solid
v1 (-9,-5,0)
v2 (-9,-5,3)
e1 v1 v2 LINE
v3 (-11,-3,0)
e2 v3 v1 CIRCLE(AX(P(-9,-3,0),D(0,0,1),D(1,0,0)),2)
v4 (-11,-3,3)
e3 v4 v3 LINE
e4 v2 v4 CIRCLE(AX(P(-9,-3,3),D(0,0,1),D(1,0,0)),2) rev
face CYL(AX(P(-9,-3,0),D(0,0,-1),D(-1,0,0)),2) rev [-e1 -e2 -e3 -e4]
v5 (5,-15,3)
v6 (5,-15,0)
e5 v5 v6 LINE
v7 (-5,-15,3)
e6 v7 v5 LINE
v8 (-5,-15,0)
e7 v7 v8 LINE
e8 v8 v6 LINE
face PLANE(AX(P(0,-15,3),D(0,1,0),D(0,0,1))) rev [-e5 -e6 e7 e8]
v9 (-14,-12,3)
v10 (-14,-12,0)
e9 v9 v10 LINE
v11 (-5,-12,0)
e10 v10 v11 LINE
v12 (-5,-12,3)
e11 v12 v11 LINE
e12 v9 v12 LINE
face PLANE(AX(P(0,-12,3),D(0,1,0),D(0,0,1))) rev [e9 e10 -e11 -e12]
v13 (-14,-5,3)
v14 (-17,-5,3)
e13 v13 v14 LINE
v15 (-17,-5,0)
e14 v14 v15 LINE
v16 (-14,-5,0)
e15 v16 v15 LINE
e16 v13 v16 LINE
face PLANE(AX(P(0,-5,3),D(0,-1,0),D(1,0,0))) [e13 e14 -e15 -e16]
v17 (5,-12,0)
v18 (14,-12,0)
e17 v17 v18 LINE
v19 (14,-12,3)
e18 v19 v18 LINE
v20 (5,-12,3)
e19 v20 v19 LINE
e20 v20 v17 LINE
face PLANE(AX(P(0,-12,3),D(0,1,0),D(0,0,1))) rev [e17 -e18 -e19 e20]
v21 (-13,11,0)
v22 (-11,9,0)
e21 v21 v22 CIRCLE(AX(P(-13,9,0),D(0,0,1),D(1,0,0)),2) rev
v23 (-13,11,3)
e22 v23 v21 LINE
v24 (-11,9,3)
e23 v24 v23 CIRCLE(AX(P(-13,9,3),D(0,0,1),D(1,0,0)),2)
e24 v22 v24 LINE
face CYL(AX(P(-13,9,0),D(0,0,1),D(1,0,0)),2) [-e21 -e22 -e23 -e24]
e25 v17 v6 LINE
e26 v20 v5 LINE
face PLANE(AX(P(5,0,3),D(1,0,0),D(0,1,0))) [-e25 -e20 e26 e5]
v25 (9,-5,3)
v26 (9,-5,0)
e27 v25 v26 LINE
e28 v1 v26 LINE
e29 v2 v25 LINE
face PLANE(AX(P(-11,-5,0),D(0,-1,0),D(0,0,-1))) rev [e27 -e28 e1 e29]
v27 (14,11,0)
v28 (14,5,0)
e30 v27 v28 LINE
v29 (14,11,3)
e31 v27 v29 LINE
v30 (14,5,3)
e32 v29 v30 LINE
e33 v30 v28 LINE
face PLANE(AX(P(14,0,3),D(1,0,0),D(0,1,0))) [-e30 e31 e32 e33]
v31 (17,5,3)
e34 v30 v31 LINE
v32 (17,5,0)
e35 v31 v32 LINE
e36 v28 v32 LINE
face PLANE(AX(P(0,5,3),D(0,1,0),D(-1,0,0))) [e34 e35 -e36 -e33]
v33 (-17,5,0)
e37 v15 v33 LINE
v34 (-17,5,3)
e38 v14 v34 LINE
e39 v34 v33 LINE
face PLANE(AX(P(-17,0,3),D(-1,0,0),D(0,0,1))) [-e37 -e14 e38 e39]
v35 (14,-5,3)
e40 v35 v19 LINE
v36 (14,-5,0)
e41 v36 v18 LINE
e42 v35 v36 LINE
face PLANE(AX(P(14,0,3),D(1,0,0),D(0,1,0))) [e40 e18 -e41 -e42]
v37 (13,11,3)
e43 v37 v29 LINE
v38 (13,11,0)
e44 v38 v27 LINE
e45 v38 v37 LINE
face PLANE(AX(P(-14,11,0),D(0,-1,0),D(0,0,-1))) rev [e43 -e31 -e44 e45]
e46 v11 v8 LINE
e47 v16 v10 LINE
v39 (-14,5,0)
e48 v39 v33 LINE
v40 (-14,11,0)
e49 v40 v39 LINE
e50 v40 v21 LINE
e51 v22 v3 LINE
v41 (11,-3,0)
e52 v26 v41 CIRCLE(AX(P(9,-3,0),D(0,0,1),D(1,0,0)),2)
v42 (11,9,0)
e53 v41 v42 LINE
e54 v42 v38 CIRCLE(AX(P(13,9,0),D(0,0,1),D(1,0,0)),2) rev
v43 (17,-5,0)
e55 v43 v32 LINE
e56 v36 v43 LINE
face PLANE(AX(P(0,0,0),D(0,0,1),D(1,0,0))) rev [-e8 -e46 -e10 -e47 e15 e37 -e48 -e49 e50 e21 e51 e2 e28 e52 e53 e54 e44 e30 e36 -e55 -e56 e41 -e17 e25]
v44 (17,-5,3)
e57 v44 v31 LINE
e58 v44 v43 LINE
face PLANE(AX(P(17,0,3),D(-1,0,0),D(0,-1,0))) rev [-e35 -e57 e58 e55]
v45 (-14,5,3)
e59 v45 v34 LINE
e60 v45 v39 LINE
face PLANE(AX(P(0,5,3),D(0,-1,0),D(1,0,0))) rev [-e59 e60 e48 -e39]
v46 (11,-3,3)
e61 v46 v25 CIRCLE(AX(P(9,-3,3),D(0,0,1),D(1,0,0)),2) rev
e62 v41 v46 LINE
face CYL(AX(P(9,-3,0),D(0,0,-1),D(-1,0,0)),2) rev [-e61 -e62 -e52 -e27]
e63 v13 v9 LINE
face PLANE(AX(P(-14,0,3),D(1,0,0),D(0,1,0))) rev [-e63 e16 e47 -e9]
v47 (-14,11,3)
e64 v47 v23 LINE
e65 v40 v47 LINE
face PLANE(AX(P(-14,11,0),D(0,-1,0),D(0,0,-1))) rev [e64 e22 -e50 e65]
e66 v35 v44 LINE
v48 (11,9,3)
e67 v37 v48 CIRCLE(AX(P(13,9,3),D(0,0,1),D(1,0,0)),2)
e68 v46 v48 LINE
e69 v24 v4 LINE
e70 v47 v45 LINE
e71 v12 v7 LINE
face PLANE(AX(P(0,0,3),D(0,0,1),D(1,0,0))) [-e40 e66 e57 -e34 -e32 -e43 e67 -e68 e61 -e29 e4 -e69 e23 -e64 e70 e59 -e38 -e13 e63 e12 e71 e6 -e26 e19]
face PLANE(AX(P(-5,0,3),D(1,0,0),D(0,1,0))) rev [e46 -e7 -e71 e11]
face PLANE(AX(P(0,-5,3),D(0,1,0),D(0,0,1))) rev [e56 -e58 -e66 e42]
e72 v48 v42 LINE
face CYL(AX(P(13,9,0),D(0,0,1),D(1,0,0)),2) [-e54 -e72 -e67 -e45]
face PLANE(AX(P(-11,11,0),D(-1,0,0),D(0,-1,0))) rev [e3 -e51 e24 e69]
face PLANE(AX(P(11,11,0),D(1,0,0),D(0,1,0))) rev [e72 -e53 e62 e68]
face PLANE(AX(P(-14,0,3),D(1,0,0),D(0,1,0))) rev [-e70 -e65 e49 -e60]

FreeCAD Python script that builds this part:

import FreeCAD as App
import Part
import Sketcher
from FreeCAD import Vector


def edges_at(feature, points):
    """Names of the edges that pass closest to the given points."""
    edges = feature.Shape.Edges
    near = lambda p: min(range(len(edges)), key=lambda i: edges[i].distToShape(Part.Vertex(*p))[0])
    return sorted({f"Edge{near(p) + 1}" for p in points})


def add_polygon(sketch, points):
    """Adds a closed chain of lines whose ends are joined by coincident constraints."""
    first, n = sketch.GeometryCount, len(points)
    for a, b in zip(points, points[1:] + points[:1]):
        sketch.addGeometry(Part.LineSegment(App.Vector(*a, 0), App.Vector(*b, 0)), False)
    for i in range(n):
        sketch.addConstraint(Sketcher.Constraint("Coincident", first + i, 2, first + (i + 1) % n, 1))

doc = App.newDocument("Part")
body = doc.addObject("PartDesign::Body", "Body")

# Sketch on XY plane
sketch1 = doc.addObject("Sketcher::SketchObject", "Sketch")
body.addObject(sketch1)
sketch1.AttachmentSupport = (doc.XY_Plane, [""])
sketch1.MapMode = "FlatFace"
add_polygon(sketch1, [(-14, -5), (-14, -12), (-5, -12), (-5, -15), (5, -15), (5, -12), (14, -12), (14, -5), (17, -5), (17, 5), (14, 5), (14, 12), (-14, 12), (-14, 5), (-17, 5), (-17, -5)])  # lines 0-15
sketch1.addConstraint([
    Sketcher.Constraint("Vertical", 0),
    Sketcher.Constraint("Horizontal", 1),
    Sketcher.Constraint("Vertical", 2),
    Sketcher.Constraint("Horizontal", 3),
    Sketcher.Constraint("Vertical", 4),
    Sketcher.Constraint("Horizontal", 5),
    Sketcher.Constraint("Vertical", 6),
    Sketcher.Constraint("Horizontal", 7),
    Sketcher.Constraint("Vertical", 8),
    Sketcher.Constraint("Horizontal", 9),
    Sketcher.Constraint("Vertical", 10),
    Sketcher.Constraint("Horizontal", 11),
    Sketcher.Constraint("Vertical", 12),
    Sketcher.Constraint("Horizontal", 13),
    Sketcher.Constraint("Vertical", 14),
    Sketcher.Constraint("Horizontal", 15),
    Sketcher.Constraint("Symmetric", 0, 2, 10, 2, -1, 1),
    Sketcher.Constraint("Symmetric", 5, 2, 11, 2, -1, 1),
    Sketcher.Constraint("Symmetric", 7, 2, 13, 2, -1, 1),
    Sketcher.Constraint("Symmetric", 9, 2, 12, 2, -2),
    Sketcher.Constraint("Horizontal", 7, 2, 14, 2),
    Sketcher.Constraint("Equal", 1, 5),
    Sketcher.Constraint("Equal", 15, 2),
    Sketcher.Constraint("Equal", 3, 8),
    Sketcher.Constraint("DistanceX", 1, 1, 1, 2, 9.0),
    Sketcher.Constraint("DistanceX", 3, 1, 3, 2, 10.0),
    Sketcher.Constraint("DistanceX", 7, 1, 7, 2, 3.0),
    Sketcher.Constraint("DistanceY", 0, 2, 0, 1, 7.0),
])
pad1 = doc.addObject("PartDesign::Pad", "Pad")
body.addObject(pad1)
pad1.Profile = sketch1
pad1.Length = 3

# Sketch on XY plane
sketch2 = doc.addObject("Sketcher::SketchObject", "Sketch001")
body.addObject(sketch2)
sketch2.AttachmentSupport = (doc.XY_Plane, [""])
sketch2.MapMode = "FlatFace"
sketch2.AttachmentOffset = App.Placement(Vector(0, 0, 3), App.Rotation())
add_polygon(sketch2, [(-14, 12), (-14, 11), (14, 11), (14, 12)])  # lines 0-3
sketch2.addConstraint([
    Sketcher.Constraint("Vertical", 0),
    Sketcher.Constraint("Horizontal", 1),
    Sketcher.Constraint("Vertical", 2),
    Sketcher.Constraint("Horizontal", 3),
    Sketcher.Constraint("DistanceX", 1, 1, 1, 2, 28.0),
    Sketcher.Constraint("DistanceY", 0, 2, 0, 1, 1.0),
    Sketcher.Constraint("DistanceX", 0, 2, -1, 1, 14.0),
    Sketcher.Constraint("DistanceY", -1, 1, 0, 2, 11.0),
])
pocket1 = doc.addObject("PartDesign::Pocket", "Pocket")
body.addObject(pocket1)
pocket1.Profile = sketch2
pocket1.Length = 3

# Sketch on XY plane
sketch3 = doc.addObject("Sketcher::SketchObject", "Sketch002")
body.addObject(sketch3)
sketch3.AttachmentSupport = (doc.XY_Plane, [""])
sketch3.MapMode = "FlatFace"
sketch3.AttachmentOffset = App.Placement(Vector(0, 0, 3), App.Rotation())
add_polygon(sketch3, [(-11, 11), (-11, -5), (11, -5), (11, 11)])  # lines 0-3
sketch3.addConstraint([
    Sketcher.Constraint("Vertical", 0),
    Sketcher.Constraint("Horizontal", 1),
    Sketcher.Constraint("Vertical", 2),
    Sketcher.Constraint("Horizontal", 3),
    Sketcher.Constraint("DistanceX", 1, 1, 1, 2, 22.0),
    Sketcher.Constraint("DistanceY", 0, 2, 0, 1, 16.0),
    Sketcher.Constraint("DistanceX", 0, 2, -1, 1, 11.0),
    Sketcher.Constraint("DistanceY", 0, 2, -1, 1, 5.0),
])
pocket2 = doc.addObject("PartDesign::Pocket", "Pocket001")
body.addObject(pocket2)
pocket2.Profile = sketch3
pocket2.Type = "ThroughAll"
pocket2.Midplane = True
doc.recompute()

fillet = doc.addObject("PartDesign::Fillet", "Fillet")
body.addObject(fillet)
fillet.Base = (pocket2, edges_at(pocket2, [
    (-11, -5, 1.5),
    (-11, 11, 1.5),
    (11, 11, 1.5),
    (11, -5, 1.5),
]))
fillet.Radius = 2

doc.recompute()
